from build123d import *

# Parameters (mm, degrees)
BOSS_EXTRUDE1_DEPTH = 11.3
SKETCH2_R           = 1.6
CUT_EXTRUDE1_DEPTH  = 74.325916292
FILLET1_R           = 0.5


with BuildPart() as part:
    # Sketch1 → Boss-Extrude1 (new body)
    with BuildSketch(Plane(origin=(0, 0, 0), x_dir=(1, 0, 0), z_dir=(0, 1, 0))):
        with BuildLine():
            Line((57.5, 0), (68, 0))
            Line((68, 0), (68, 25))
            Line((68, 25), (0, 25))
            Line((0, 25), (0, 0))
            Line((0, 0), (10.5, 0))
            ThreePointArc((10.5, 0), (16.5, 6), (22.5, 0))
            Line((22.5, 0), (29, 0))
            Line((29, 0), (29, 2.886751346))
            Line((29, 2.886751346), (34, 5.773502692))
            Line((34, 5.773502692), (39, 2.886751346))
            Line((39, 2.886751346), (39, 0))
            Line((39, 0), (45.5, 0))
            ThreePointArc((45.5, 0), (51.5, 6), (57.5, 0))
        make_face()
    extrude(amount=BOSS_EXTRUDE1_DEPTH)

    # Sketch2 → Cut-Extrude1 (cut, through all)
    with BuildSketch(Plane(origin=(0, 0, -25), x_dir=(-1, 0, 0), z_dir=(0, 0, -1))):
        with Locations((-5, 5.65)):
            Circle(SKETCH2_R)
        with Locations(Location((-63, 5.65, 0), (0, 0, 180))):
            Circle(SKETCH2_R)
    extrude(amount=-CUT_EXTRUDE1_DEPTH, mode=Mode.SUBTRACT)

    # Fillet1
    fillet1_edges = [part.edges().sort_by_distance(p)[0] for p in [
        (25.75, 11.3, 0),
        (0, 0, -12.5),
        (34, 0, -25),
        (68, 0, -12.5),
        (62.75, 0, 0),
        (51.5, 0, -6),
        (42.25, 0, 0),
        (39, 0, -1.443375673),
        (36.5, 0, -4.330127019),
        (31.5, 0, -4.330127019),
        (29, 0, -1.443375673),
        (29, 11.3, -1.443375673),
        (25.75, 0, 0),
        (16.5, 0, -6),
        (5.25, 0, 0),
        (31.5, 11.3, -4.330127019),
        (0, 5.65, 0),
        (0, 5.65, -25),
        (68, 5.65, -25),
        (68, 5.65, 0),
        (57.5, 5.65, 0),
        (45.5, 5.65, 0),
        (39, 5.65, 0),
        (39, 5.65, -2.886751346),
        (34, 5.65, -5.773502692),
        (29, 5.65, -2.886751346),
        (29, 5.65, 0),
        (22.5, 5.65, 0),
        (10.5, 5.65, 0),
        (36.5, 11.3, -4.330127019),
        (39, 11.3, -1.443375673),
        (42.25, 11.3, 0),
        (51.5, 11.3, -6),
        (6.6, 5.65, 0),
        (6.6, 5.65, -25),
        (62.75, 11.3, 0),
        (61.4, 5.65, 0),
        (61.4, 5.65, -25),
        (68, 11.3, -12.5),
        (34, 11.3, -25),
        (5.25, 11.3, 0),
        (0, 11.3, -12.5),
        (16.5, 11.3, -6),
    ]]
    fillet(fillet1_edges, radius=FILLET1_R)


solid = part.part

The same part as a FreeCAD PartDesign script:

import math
import FreeCAD as App
import Part
import Sketcher
from FreeCAD import Vector
Q = App.Units.Quantity

doc = App.newDocument("Part")
body = doc.addObject("PartDesign::Body", "Body")

# Sketch on XZ plane
sketch1 = doc.addObject("Sketcher::SketchObject", "Sketch")
body.addObject(sketch1)
sketch1.AttachmentSupport = (doc.XZ_Plane, [""])
sketch1.MapMode = "FlatFace"
sketch1.addGeometry([
    Part.LineSegment(Vector(57.5, 0, 0), Vector(68, 0, 0)),  # 0
    Part.LineSegment(Vector(68, 0, 0), Vector(68, -25, 0)),  # 1
    Part.LineSegment(Vector(68, -25, 0), Vector(0, -25, 0)),  # 2
    Part.LineSegment(Vector(0, -25, 0), Vector(0, 0, 0)),  # 3
    Part.LineSegment(Vector(0, 0, 0), Vector(10.5, 0, 0)),  # 4
    Part.ArcOfCircle(Part.Circle(Vector(16.5, 0, 0), Vector(0, 0, 1), 6), math.radians(180), math.radians(360)),  # 5
    Part.LineSegment(Vector(22.5, 0, 0), Vector(29, 0, 0)),  # 6
    Part.LineSegment(Vector(29, 0, 0), Vector(29, -2.9, 0)),  # 7
    Part.LineSegment(Vector(29, -2.9, 0), Vector(34, -5.8, 0)),  # 8
    Part.LineSegment(Vector(34, -5.8, 0), Vector(39, -2.9, 0)),  # 9
    Part.LineSegment(Vector(39, -2.9, 0), Vector(39, 0, 0)),  # 10
    Part.LineSegment(Vector(39, 0, 0), Vector(45.5, 0, 0)),  # 11
    Part.ArcOfCircle(Part.Circle(Vector(51.5, 0, 0), Vector(0, 0, 1), 6), math.radians(180), math.radians(360)),  # 12
], False)
sketch1.addConstraint([
    Sketcher.Constraint("Coincident", 0, 2, 1, 1),
    Sketcher.Constraint("Coincident", 1, 2, 2, 1),
    Sketcher.Constraint("Coincident", 2, 2, 3, 1),
    Sketcher.Constraint("Coincident", 3, 2, 4, 1),
    Sketcher.Constraint("Coincident", 4, 2, 5, 1),
    Sketcher.Constraint("Coincident", 5, 2, 6, 1),
    Sketcher.Constraint("Coincident", 6, 2, 7, 1),
    Sketcher.Constraint("Coincident", 7, 2, 8, 1),
    Sketcher.Constraint("Coincident", 8, 2, 9, 1),
    Sketcher.Constraint("Coincident", 9, 2, 10, 1),
    Sketcher.Constraint("Coincident", 10, 2, 11, 1),
    Sketcher.Constraint("Coincident", 11, 2, 12, 1),
    Sketcher.Constraint("Coincident", 12, 2, 0, 1),
    Sketcher.Constraint("Horizontal", 0),
    Sketcher.Constraint("Vertical", 1),
    Sketcher.Constraint("Horizontal", 2),
    Sketcher.Constraint("Vertical", 3),
    Sketcher.Constraint("Horizontal", 4),
    Sketcher.Constraint("Horizontal", 6),
    Sketcher.Constraint("Vertical", 7),
    Sketcher.Constraint("Vertical", 10),
    Sketcher.Constraint("Horizontal", 11),
    Sketcher.Constraint("Coincident", 3, 2, -1, 1),
    Sketcher.Constraint("Equal", 5, 12),
    Sketcher.Constraint("PointOnObject", 5, 3, -1),
    Sketcher.Constraint("PointOnObject", 12, 3, -1),
    Sketcher.Constraint("PointOnObject", 0, 2, -1),
    Sketcher.Constraint("PointOnObject", 5, 2, -1),
    Sketcher.Constraint("PointOnObject", 10, 2, -1),
    Sketcher.Constraint("Horizontal", 7, 2, 9, 2),
    Sketcher.Constraint("Equal", 0, 4),
    Sketcher.Constraint("Equal", 6, 11),
    Sketcher.Constraint("Equal", 8, 9),
    Sketcher.Constraint("Radius", 5, Q("6 mm")),
    Sketcher.Constraint("DistanceX", 2, 2, 2, 1, Q("68 mm")),
    Sketcher.Constraint("DistanceY", 1, 2, 1, 1, Q("25 mm")),
    Sketcher.Constraint("Angle", 8, Q("-30 deg")),
    Sketcher.Constraint("DistanceX", 0, 1, 0, 2, Q("10.5 mm")),
    Sketcher.Constraint("DistanceX", 6, 1, 6, 2, Q("6.5 mm")),
    Sketcher.Constraint("DistanceY", 7, 2, 7, 1, Q("2.886751 mm")),
])
pad1 = doc.addObject("PartDesign::Pad", "Pad")
body.addObject(pad1)
pad1.Profile = sketch1
pad1.Length = 11.3
pad1.Reversed = True

# Sketch on XY plane
sketch2 = doc.addObject("Sketcher::SketchObject", "Sketch001")
body.addObject(sketch2)
sketch2.AttachmentSupport = (doc.XY_Plane, [""])
sketch2.MapMode = "FlatFace"
sketch2.AttachmentOffset = App.Placement(Vector(0, 0, -25), App.Rotation())
sketch2.addGeometry([
    Part.Circle(Vector(5, 5.7, 0), Vector(0, 0, 1), 1.6),
    Part.Circle(Vector(63, 5.7, 0), Vector(0, 0, 1), 1.6),
], False)
sketch2.addConstraint([
    Sketcher.Constraint("Equal", 0, 1),
    Sketcher.Constraint("Horizontal", 0, 3, 1, 3),
    Sketcher.Constraint("Diameter", 0, Q("3.2 mm")),
    Sketcher.Constraint("DistanceX", -1, 1, 0, 3, Q("5 mm")),
    Sketcher.Constraint("DistanceX", -1, 1, 1, 3, Q("63 mm")),
    Sketcher.Constraint("DistanceY", -1, 1, 0, 3, Q("5.65 mm")),
])
pocket1 = doc.addObject("PartDesign::Pocket", "Pocket")
body.addObject(pocket1)
pocket1.Profile = sketch2
pocket1.Type = "ThroughAll"
pocket1.Reversed = True
doc.recompute()

fillet = doc.addObject("PartDesign::Fillet", "Fillet")
body.addObject(fillet)
fillet.Base = (pocket1, ["Edge1"])
fillet.UseAllEdges = True
fillet.Radius = 0.5

doc.recompute()
